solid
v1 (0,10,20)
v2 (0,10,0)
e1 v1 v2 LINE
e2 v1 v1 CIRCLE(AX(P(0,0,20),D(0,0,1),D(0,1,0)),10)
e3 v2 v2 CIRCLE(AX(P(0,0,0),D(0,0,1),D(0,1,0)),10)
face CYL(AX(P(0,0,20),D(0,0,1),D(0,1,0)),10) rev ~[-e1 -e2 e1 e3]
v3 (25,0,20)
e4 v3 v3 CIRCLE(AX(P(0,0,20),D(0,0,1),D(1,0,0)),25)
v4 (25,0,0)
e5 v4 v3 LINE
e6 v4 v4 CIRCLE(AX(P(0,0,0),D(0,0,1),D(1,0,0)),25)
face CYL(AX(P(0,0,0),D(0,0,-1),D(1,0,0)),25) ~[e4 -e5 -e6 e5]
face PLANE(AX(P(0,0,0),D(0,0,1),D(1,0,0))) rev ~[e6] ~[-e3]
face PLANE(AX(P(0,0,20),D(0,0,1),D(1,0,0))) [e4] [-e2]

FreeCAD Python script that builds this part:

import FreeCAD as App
import Part
import Sketcher

V = App.Vector

doc = App.newDocument("Part")
params = doc.addObject("Spreadsheet::Sheet", "Params")
for row, (alias, value) in enumerate([
    ("sketch1_diameter", "50 mm"),
    ("pad1_length", "20 mm"),
    ("sketch2_diameter", "20 mm"),
], start=1):
    params.set(f"A{row}", alias)
    params.set(f"B{row}", "=" + value)
    params.setAlias(f"B{row}", alias)

body = doc.addObject("PartDesign::Body", "Body")

# Sketch on XY plane
sketch1 = body.newObject("Sketcher::SketchObject", "Sketch")
sketch1.AttachmentSupport = (doc.getObject("XY_Plane"), [""])
sketch1.MapMode = "FlatFace"
sketch1.addGeometry(Part.Circle(V(0, 0, 0), V(0, 0, 1), 25), False)
sketch1.addConstraint([
    Sketcher.Constraint("Coincident", 0, 3, -1, 1),
    Sketcher.Constraint("Diameter", 0, 50.0),
])
sketch1.setExpression("Constraints[1]", "Params.sketch1_diameter")
pad1 = body.newObject("PartDesign::Pad", "Pad")
pad1.Profile = sketch1
pad1.setExpression("Length", "Params.pad1_length")

# Sketch on XY plane
sketch2 = body.newObject("Sketcher::SketchObject", "Sketch001")
sketch2.AttachmentSupport = (doc.getObject("XY_Plane"), [""])
sketch2.MapMode = "FlatFace"
sketch2.AttachmentOffset = App.Placement(V(0, 0, 20), App.Rotation())
sketch2.addGeometry(Part.Circle(V(0, 0, 0), V(0, 0, 1), 10), False)
sketch2.addConstraint([
    Sketcher.Constraint("Coincident", 0, 3, -1, 1),
    Sketcher.Constraint("Diameter", 0, 20.0),
])
sketch2.setExpression("Constraints[1]", "Params.sketch2_diameter")
pocket1 = body.newObject("PartDesign::Pocket", "Pocket")
pocket1.Profile = sketch2
pocket1.Type = "UpToFirst"

doc.recompute()
